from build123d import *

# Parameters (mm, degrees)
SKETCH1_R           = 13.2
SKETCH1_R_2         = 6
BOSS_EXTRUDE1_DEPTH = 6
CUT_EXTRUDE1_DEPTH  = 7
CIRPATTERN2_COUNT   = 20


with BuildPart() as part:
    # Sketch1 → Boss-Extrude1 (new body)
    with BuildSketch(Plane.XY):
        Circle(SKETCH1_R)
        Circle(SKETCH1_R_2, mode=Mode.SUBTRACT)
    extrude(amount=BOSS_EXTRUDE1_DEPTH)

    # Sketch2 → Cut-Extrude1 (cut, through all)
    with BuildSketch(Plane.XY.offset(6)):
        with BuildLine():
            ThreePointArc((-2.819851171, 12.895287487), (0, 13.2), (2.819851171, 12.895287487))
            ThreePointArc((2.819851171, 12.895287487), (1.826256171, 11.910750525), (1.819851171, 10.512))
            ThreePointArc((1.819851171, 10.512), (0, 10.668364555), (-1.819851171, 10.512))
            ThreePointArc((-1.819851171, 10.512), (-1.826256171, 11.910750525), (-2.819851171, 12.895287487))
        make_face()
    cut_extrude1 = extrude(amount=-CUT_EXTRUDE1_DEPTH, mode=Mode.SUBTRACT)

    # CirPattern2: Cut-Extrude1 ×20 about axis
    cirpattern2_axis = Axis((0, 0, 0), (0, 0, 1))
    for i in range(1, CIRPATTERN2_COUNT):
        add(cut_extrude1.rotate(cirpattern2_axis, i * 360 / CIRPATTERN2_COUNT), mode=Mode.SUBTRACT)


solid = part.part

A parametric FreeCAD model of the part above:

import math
import FreeCAD as App
import Part
import Sketcher
from FreeCAD import Vector
Q = App.Units.Quantity

doc = App.newDocument("Part")
params = doc.addObject("Spreadsheet::Sheet", "Params")
for row, (alias, value) in enumerate([
    ("sketch1_diameter", "12 mm"),
    ("sketch1_diameter2", "26.4 mm"),
    ("pad1_length", "6 mm"),
    ("sketch2_radius", "13.2 mm"),
], start=1):
    params.set(f"A{row}", alias)
    params.set(f"B{row}", "=" + value)
    params.setAlias(f"B{row}", alias)

body = doc.addObject("PartDesign::Body", "Body")
body.AllowCompound = True

sketch1 = doc.addObject("Sketcher::SketchObject", "Sketch")
body.addObject(sketch1)
sketch1.AttachmentSupport = (doc.XY_Plane, [""])
sketch1.MapMode = "FlatFace"
sketch1.addGeometry(Part.Circle(Vector(0, 0, 0), Vector(0, 0, 1), 13), False)
sketch1.addGeometry(Part.Circle(Vector(0, 0, 0), Vector(0, 0, 1), 6), False)
sketch1.addConstraint(Sketcher.Constraint("Coincident", 0, 3, -1, 1))
sketch1.addConstraint(Sketcher.Constraint("Coincident", 1, 3, -1, 1))
sketch1.addConstraint(Sketcher.Constraint("Diameter", 1, Q("12 mm")))
sketch1.addConstraint(Sketcher.Constraint("Diameter", 0, Q("26.4 mm")))
sketch1.setExpression("Constraints[2]", "Params.sketch1_diameter")
sketch1.setExpression("Constraints[3]", "Params.sketch1_diameter2")
pad1 = doc.addObject("PartDesign::Pad", "Pad")
body.addObject(pad1)
pad1.Profile = sketch1
pad1.setExpression("Length", "Params.pad1_length")

sketch2 = doc.addObject("Sketcher::SketchObject", "Sketch001")
body.addObject(sketch2)
sketch2.AttachmentSupport = (doc.XY_Plane, [""])
sketch2.MapMode = "FlatFace"
sketch2.AttachmentOffset = App.Placement(Vector(0, 0, 6), App.Rotation())
sketch2.addGeometry(Part.ArcOfCircle(Part.Circle(Vector(0, 0, 0), Vector(0, 0, 1), 13.2), math.radians(78), math.radians(102)), False)
sketch2.addGeometry(Part.ArcOfCircle(Part.Circle(Vector(-3.5, 11.2, 0), Vector(0, 0, 1), 1.8), math.radians(-22), math.radians(68)), False)
sketch2.addGeometry(Part.ArcOfCircle(Part.Circle(Vector(0, 0, 0), Vector(0, 0, 1), 10.7), math.radians(80.18), math.radians(99.82)), False)
sketch2.addGeometry(Part.ArcOfCircle(Part.Circle(Vector(3.5, 11.2, 0), Vector(0, 0, 1), 1.8), math.radians(112), math.radians(202)), False)
sketch2.addConstraint(Sketcher.Constraint("Coincident", 0, 2, 1, 2))
sketch2.addConstraint(Sketcher.Constraint("Coincident", 1, 1, 2, 2))
sketch2.addConstraint(Sketcher.Constraint("Coincident", 2, 1, 3, 2))
sketch2.addConstraint(Sketcher.Constraint("Coincident", 3, 1, 0, 1))
sketch2.addConstraint(Sketcher.Constraint("Coincident", 0, 3, -1, 1))
sketch2.addConstraint(Sketcher.Constraint("Coincident", 2, 3, -1, 1))
sketch2.addConstraint(Sketcher.Constraint("Equal", 1, 3))
sketch2.addConstraint(Sketcher.Constraint("Symmetric", 1, 3, 3, 3, -2))
sketch2.addConstraint(Sketcher.Constraint("Radius", 0, Q("13.2 mm")))
sketch2.addConstraint(Sketcher.Constraint("DistanceX", 0, 2, 1, 1, Q("1 mm")))
sketch2.addConstraint(Sketcher.Constraint("DistanceY", -1, 1, 1, 1, Q("10.512 mm")))
sketch2.addConstraint(Sketcher.Constraint("Radius", 1, Q("1.827575 mm")))
sketch2.addConstraint(Sketcher.Constraint("Radius", 2, Q("10.668365 mm")))
sketch2.setExpression("Constraints[8]", "Params.sketch2_radius")
pocket1 = doc.addObject("PartDesign::Pocket", "Pocket")
body.addObject(pocket1)
pocket1.Profile = sketch2
pocket1.Type = "ThroughAll"
doc.recompute()

polarpattern = doc.addObject("PartDesign::PolarPattern", "PolarPattern")
body.addObject(polarpattern)
polarpattern.Originals = [pocket1]
polarpattern.Axis = (doc.Z_Axis, [""])
polarpattern.Angle = 360
polarpattern.Occurrences = 20
body.Tip = polarpattern

doc.recompute()
